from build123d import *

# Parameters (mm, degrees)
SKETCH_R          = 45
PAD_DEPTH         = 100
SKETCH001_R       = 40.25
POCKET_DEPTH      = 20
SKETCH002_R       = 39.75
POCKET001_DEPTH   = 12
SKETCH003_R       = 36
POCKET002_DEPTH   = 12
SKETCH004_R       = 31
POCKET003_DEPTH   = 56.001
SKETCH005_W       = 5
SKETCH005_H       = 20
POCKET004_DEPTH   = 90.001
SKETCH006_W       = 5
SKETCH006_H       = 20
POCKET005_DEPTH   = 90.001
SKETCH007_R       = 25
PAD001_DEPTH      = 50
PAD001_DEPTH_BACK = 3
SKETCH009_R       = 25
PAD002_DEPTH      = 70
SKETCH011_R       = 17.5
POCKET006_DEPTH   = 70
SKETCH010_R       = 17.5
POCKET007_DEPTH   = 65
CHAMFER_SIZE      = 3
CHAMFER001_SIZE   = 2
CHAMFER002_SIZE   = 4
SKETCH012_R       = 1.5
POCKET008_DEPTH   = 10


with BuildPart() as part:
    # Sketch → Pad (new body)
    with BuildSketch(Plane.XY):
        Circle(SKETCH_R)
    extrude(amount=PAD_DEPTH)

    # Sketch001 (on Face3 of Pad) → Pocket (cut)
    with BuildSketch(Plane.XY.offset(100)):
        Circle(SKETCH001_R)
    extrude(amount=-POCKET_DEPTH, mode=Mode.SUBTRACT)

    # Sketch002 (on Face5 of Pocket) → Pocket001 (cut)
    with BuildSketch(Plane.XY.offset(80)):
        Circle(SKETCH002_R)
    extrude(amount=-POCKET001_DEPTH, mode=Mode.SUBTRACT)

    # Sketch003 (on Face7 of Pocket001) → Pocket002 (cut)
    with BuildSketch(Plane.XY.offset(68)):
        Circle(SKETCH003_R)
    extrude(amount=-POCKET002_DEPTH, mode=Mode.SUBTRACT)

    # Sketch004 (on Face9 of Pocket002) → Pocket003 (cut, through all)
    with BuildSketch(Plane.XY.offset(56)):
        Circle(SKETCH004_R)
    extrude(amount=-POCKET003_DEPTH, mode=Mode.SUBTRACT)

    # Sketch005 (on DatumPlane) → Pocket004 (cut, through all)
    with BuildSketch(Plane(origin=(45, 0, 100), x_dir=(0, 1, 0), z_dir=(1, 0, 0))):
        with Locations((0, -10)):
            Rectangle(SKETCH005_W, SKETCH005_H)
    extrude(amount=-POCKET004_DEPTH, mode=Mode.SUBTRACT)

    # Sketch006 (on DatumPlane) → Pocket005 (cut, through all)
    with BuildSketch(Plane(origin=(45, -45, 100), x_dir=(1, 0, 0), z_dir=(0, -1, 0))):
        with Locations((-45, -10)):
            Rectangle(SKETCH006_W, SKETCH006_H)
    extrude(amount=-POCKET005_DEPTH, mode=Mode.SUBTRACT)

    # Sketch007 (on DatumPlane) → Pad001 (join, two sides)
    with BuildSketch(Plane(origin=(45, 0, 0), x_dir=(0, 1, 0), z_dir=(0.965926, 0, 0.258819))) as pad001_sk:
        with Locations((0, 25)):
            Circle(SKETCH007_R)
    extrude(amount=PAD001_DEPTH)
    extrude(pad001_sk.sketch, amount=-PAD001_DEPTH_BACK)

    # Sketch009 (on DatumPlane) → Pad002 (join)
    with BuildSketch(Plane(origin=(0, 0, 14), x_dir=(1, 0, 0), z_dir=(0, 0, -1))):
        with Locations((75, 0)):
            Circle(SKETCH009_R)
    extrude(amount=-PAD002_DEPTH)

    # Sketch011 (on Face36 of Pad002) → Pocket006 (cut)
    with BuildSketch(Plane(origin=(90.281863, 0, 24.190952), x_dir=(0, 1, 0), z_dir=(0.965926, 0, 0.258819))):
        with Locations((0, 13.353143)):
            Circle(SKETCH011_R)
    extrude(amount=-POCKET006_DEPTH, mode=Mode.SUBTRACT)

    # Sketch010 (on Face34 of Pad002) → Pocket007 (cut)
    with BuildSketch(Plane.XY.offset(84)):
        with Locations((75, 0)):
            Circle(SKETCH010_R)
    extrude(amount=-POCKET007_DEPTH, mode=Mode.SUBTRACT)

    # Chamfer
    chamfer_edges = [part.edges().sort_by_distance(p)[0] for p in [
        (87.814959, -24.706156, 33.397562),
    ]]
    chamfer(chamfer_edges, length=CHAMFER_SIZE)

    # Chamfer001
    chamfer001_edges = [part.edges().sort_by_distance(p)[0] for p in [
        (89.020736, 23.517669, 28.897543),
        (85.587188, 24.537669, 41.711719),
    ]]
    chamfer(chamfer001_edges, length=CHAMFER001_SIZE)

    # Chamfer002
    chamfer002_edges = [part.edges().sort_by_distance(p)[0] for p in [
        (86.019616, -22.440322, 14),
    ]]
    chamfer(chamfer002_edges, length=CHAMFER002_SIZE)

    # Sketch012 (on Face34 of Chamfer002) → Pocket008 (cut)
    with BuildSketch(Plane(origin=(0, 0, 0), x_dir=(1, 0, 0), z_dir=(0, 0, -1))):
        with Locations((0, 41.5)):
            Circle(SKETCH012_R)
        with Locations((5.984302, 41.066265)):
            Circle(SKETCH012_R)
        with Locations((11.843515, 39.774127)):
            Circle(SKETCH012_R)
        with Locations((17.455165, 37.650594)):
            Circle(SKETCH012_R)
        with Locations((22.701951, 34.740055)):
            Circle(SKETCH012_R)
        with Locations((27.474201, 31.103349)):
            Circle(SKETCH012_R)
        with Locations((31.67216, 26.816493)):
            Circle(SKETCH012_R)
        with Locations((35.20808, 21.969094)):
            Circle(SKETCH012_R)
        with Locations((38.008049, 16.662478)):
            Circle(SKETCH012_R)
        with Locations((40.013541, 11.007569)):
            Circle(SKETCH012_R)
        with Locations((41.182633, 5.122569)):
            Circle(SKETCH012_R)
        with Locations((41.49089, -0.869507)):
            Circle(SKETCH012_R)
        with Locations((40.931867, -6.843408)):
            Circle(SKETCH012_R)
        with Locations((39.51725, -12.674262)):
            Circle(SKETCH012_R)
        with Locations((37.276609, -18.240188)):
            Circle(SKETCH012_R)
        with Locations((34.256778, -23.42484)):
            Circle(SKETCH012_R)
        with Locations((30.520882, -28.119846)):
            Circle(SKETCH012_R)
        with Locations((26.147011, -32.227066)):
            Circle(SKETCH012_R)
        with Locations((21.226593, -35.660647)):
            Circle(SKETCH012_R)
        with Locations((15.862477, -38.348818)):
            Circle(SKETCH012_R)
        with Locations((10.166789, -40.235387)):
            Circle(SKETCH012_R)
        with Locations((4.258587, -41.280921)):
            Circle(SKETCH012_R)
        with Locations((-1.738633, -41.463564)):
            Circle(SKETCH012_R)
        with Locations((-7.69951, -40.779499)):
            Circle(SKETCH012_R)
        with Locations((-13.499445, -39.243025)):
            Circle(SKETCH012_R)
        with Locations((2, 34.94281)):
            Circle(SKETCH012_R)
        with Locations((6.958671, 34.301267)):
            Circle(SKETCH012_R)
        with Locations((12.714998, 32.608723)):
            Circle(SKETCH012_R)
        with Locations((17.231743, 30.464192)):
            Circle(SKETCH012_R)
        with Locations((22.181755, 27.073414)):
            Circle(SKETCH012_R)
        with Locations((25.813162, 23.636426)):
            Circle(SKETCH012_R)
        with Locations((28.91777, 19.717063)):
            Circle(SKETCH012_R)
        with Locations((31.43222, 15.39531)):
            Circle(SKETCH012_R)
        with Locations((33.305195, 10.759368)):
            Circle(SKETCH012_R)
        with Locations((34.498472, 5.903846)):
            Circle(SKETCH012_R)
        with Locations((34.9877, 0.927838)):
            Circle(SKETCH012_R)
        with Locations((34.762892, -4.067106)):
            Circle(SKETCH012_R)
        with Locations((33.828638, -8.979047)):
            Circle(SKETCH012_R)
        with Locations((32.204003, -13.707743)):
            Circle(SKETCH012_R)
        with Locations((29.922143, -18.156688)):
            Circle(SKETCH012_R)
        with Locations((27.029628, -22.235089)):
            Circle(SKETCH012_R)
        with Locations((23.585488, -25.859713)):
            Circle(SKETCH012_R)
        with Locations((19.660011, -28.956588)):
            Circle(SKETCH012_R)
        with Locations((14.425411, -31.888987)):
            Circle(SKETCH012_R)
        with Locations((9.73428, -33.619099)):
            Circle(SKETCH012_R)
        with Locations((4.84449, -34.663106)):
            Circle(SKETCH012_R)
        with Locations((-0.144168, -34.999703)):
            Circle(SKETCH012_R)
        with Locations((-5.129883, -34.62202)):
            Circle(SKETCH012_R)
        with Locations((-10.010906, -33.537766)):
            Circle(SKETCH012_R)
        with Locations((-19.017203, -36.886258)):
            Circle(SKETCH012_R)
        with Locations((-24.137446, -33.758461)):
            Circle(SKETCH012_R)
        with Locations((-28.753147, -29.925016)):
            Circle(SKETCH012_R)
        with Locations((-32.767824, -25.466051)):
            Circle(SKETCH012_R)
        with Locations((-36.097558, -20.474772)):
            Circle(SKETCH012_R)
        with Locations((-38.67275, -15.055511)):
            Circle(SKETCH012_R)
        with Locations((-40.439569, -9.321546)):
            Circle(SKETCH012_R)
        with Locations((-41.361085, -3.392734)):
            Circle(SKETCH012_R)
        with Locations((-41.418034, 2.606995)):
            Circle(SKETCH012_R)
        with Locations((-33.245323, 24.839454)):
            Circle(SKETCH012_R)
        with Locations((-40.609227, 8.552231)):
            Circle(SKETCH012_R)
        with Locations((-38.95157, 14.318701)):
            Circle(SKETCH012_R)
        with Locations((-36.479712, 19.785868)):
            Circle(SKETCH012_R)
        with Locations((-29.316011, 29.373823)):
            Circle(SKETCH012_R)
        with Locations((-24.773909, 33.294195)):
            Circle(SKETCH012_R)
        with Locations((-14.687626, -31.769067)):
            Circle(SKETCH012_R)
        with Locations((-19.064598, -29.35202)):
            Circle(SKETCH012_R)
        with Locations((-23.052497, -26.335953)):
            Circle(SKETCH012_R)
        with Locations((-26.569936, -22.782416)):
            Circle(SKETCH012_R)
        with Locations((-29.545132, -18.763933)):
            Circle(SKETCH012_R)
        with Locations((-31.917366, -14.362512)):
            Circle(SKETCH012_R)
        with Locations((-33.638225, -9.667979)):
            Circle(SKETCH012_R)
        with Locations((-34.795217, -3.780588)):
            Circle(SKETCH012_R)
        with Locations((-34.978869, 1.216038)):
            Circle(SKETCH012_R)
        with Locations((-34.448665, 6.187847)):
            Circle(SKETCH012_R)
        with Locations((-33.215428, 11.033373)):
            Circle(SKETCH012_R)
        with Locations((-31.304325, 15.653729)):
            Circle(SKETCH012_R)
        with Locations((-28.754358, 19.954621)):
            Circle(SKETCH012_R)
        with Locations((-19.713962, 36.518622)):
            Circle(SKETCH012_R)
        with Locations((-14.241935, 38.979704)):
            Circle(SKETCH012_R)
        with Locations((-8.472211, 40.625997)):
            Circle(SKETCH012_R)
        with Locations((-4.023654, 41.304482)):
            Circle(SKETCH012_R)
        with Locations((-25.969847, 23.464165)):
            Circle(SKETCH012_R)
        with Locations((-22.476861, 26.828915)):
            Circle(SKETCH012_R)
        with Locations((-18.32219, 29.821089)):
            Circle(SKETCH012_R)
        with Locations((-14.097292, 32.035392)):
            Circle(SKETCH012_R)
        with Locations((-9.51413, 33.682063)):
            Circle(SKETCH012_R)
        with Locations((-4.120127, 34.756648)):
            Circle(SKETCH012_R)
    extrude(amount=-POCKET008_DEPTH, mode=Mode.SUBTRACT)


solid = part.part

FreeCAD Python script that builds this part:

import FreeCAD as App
import Part
import Sketcher


def edges_at(feature, points):
    """Names of the edges that pass closest to the given points."""
    edges = feature.Shape.Edges
    near = lambda p: min(range(len(edges)), key=lambda i: edges[i].distToShape(Part.Vertex(*p))[0])
    return sorted({f"Edge{near(p) + 1}" for p in points})

doc = App.newDocument("Part")
body = doc.addObject("PartDesign::Body", "Body")

sketch1 = doc.addObject("Sketcher::SketchObject", "Sketch")
body.addObject(sketch1)
sketch1.AttachmentSupport = (doc.XY_Plane, [""])
sketch1.MapMode = "FlatFace"
sketch1.addGeometry(Part.Circle(App.Vector(0, 0, 0), App.Vector(0, 0, 1), 45), False)
sketch1.addConstraint(Sketcher.Constraint("Coincident", 0, 3, -1, 1))
sketch1.addConstraint(Sketcher.Constraint("Diameter", 0, 90.0))
pad1 = doc.addObject("PartDesign::Pad", "Pad")
body.addObject(pad1)
pad1.Profile = sketch1
pad1.Length = 100

sketch2 = doc.addObject("Sketcher::SketchObject", "Sketch001")
body.addObject(sketch2)
sketch2.AttachmentSupport = (doc.XY_Plane, [""])
sketch2.MapMode = "FlatFace"
sketch2.AttachmentOffset = App.Placement(App.Vector(0, 0, 100), App.Rotation())
sketch2.addGeometry(Part.Circle(App.Vector(0, 0, 0), App.Vector(0, 0, 1), 40), False)
sketch2.addConstraint(Sketcher.Constraint("Coincident", 0, 3, -1, 1))
sketch2.addConstraint(Sketcher.Constraint("Diameter", 0, 80.5))
pocket1 = doc.addObject("PartDesign::Pocket", "Pocket")
body.addObject(pocket1)
pocket1.Profile = sketch2
pocket1.Length = 20

sketch3 = doc.addObject("Sketcher::SketchObject", "Sketch002")
body.addObject(sketch3)
sketch3.AttachmentSupport = (doc.XY_Plane, [""])
sketch3.MapMode = "FlatFace"
sketch3.AttachmentOffset = App.Placement(App.Vector(0, 0, 80), App.Rotation())
sketch3.addGeometry(Part.Circle(App.Vector(0, 0, 0), App.Vector(0, 0, 1), 40), False)
sketch3.addConstraint(Sketcher.Constraint("Coincident", 0, 3, -1, 1))
sketch3.addConstraint(Sketcher.Constraint("Diameter", 0, 79.5))
pocket2 = doc.addObject("PartDesign::Pocket", "Pocket001")
body.addObject(pocket2)
pocket2.Profile = sketch3
pocket2.Length = 12

sketch4 = doc.addObject("Sketcher::SketchObject", "Sketch003")
body.addObject(sketch4)
sketch4.AttachmentSupport = (doc.XY_Plane, [""])
sketch4.MapMode = "FlatFace"
sketch4.AttachmentOffset = App.Placement(App.Vector(0, 0, 68), App.Rotation())
sketch4.addGeometry(Part.Circle(App.Vector(0, 0, 0), App.Vector(0, 0, 1), 36), False)
sketch4.addConstraint(Sketcher.Constraint("Coincident", 0, 3, -1, 1))
sketch4.addConstraint(Sketcher.Constraint("Diameter", 0, 72.0))
pocket3 = doc.addObject("PartDesign::Pocket", "Pocket002")
body.addObject(pocket3)
pocket3.Profile = sketch4
pocket3.Length = 12

sketch5 = doc.addObject("Sketcher::SketchObject", "Sketch004")
body.addObject(sketch5)
sketch5.AttachmentSupport = (doc.XY_Plane, [""])
sketch5.MapMode = "FlatFace"
sketch5.AttachmentOffset = App.Placement(App.Vector(0, 0, 56), App.Rotation())
sketch5.addGeometry(Part.Circle(App.Vector(0, 0, 0), App.Vector(0, 0, 1), 31), False)
sketch5.addConstraint(Sketcher.Constraint("Coincident", 0, 3, -1, 1))
sketch5.addConstraint(Sketcher.Constraint("Diameter", 0, 62.0))
pocket4 = doc.addObject("PartDesign::Pocket", "Pocket003")
body.addObject(pocket4)
pocket4.Profile = sketch5
pocket4.Type = "ThroughAll"

sketch6 = doc.addObject("Sketcher::SketchObject", "Sketch005")
body.addObject(sketch6)
sketch6.AttachmentSupport = (doc.YZ_Plane, [""])
sketch6.MapMode = "FlatFace"
sketch6.AttachmentOffset = App.Placement(App.Vector(0, 0, 45), App.Rotation())
sketch6.addGeometry(Part.LineSegment(App.Vector(-2, 100, 0), App.Vector(-2, 80, 0)), False)
sketch6.addGeometry(Part.LineSegment(App.Vector(-2, 80, 0), App.Vector(2, 80, 0)), False)
sketch6.addGeometry(Part.LineSegment(App.Vector(2, 80, 0), App.Vector(2, 100, 0)), False)
sketch6.addGeometry(Part.LineSegment(App.Vector(2, 100, 0), App.Vector(-2, 100, 0)), False)
sketch6.addConstraint(Sketcher.Constraint("Coincident", 0, 2, 1, 1))
sketch6.addConstraint(Sketcher.Constraint("Coincident", 1, 2, 2, 1))
sketch6.addConstraint(Sketcher.Constraint("Coincident", 2, 2, 3, 1))
sketch6.addConstraint(Sketcher.Constraint("Coincident", 3, 2, 0, 1))
sketch6.addConstraint(Sketcher.Constraint("Vertical", 0))
sketch6.addConstraint(Sketcher.Constraint("Horizontal", 1))
sketch6.addConstraint(Sketcher.Constraint("Vertical", 2))
sketch6.addConstraint(Sketcher.Constraint("Horizontal", 3))
sketch6.addConstraint(Sketcher.Constraint("DistanceX", 1, 1, 1, 2, 5.0))
sketch6.addConstraint(Sketcher.Constraint("DistanceY", 0, 2, 0, 1, 20.0))
sketch6.addConstraint(Sketcher.Constraint("DistanceY", -1, 1, 0, 2, 80.0))
sketch6.addConstraint(Sketcher.Constraint("DistanceX", 0, 2, -1, 1, 2.5))
pocket5 = doc.addObject("PartDesign::Pocket", "Pocket004")
body.addObject(pocket5)
pocket5.Profile = sketch6
pocket5.Type = "ThroughAll"

sketch7 = doc.addObject("Sketcher::SketchObject", "Sketch006")
body.addObject(sketch7)
sketch7.AttachmentSupport = (doc.XZ_Plane, [""])
sketch7.MapMode = "FlatFace"
sketch7.AttachmentOffset = App.Placement(App.Vector(0, 0, 45), App.Rotation())
sketch7.addGeometry(Part.LineSegment(App.Vector(-2, 100, 0), App.Vector(-2, 80, 0)), False)
sketch7.addGeometry(Part.LineSegment(App.Vector(-2, 80, 0), App.Vector(2, 80, 0)), False)
sketch7.addGeometry(Part.LineSegment(App.Vector(2, 80, 0), App.Vector(2, 100, 0)), False)
sketch7.addGeometry(Part.LineSegment(App.Vector(2, 100, 0), App.Vector(-2, 100, 0)), False)
sketch7.addConstraint(Sketcher.Constraint("Coincident", 0, 2, 1, 1))
sketch7.addConstraint(Sketcher.Constraint("Coincident", 1, 2, 2, 1))
sketch7.addConstraint(Sketcher.Constraint("Coincident", 2, 2, 3, 1))
sketch7.addConstraint(Sketcher.Constraint("Coincident", 3, 2, 0, 1))
sketch7.addConstraint(Sketcher.Constraint("Vertical", 0))
sketch7.addConstraint(Sketcher.Constraint("Horizontal", 1))
sketch7.addConstraint(Sketcher.Constraint("Vertical", 2))
sketch7.addConstraint(Sketcher.Constraint("Horizontal", 3))
sketch7.addConstraint(Sketcher.Constraint("DistanceX", 1, 1, 1, 2, 5.0))
sketch7.addConstraint(Sketcher.Constraint("DistanceY", 0, 2, 0, 1, 20.0))
sketch7.addConstraint(Sketcher.Constraint("DistanceY", -1, 1, 0, 2, 80.0))
sketch7.addConstraint(Sketcher.Constraint("DistanceX", 0, 2, -1, 1, 2.5))
pocket6 = doc.addObject("PartDesign::Pocket", "Pocket005")
body.addObject(pocket6)
pocket6.Profile = sketch7
pocket6.Type = "ThroughAll"

sketch8 = doc.addObject("Sketcher::SketchObject", "Sketch007")
body.addObject(sketch8)
sketch8.Placement = App.Placement(App.Vector(45, 0, 0), App.Rotation(App.Vector(0, 1, 0), App.Vector(-0.25881896, 0, 0.965925849), App.Vector(0.965925849, 0, 0.25881896), "ZXY"))
sketch8.addGeometry(Part.Circle(App.Vector(0, 25, 0), App.Vector(0, 0, 1), 25), False)
sketch8.addConstraint(Sketcher.Constraint("PointOnObject", 0, 3, -2))
sketch8.addConstraint(Sketcher.Constraint("Diameter", 0, 50.0))
sketch8.addConstraint(Sketcher.Constraint("DistanceY", -1, 1, 0, 3, 25.0))
pad2 = doc.addObject("PartDesign::Pad", "Pad001")
body.addObject(pad2)
pad2.Profile = sketch8
pad2.Type = "TwoLengths"
pad2.Length = 50
pad2.Length2 = 3

sketch9 = doc.addObject("Sketcher::SketchObject", "Sketch008")
body.addObject(sketch9)
sketch9.AttachmentSupport = (doc.XY_Plane, [""])
sketch9.MapMode = "FlatFace"
sketch9.AttachmentOffset = App.Placement(App.Vector(0, 0, 14), App.Rotation())
sketch9.addGeometry(Part.Circle(App.Vector(75, 0, 0), App.Vector(0, 0, 1), 25), False)
sketch9.addConstraint(Sketcher.Constraint("PointOnObject", 0, 3, -1))
sketch9.addConstraint(Sketcher.Constraint("Diameter", 0, 50.0))
sketch9.addConstraint(Sketcher.Constraint("DistanceX", -1, 1, 0, 3, 75.0))
pad3 = doc.addObject("PartDesign::Pad", "Pad002")
body.addObject(pad3)
pad3.Profile = sketch9
pad3.Length = 70

sketch10 = doc.addObject("Sketcher::SketchObject", "Sketch009")
body.addObject(sketch10)
sketch10.Placement = App.Placement(App.Vector(90.281863, 0, 24.190952), App.Rotation(App.Vector(0, 1, 0), App.Vector(-0.25881896, 0, 0.965925849), App.Vector(0.965925849, 0, 0.25881896), "ZXY"))
sketch10.addGeometry(Part.Circle(App.Vector(0, 13, 0), App.Vector(0, 0, 1), 18), False)
sketch10.addConstraint(Sketcher.Constraint("PointOnObject", 0, 3, -2))
sketch10.addConstraint(Sketcher.Constraint("Diameter", 0, 35.0))
sketch10.addConstraint(Sketcher.Constraint("DistanceY", -1, 1, 0, 3, 13.353143))
pocket7 = doc.addObject("PartDesign::Pocket", "Pocket006")
body.addObject(pocket7)
pocket7.Profile = sketch10
pocket7.Length = 70

sketch11 = doc.addObject("Sketcher::SketchObject", "Sketch010")
body.addObject(sketch11)
sketch11.AttachmentSupport = (doc.XY_Plane, [""])
sketch11.MapMode = "FlatFace"
sketch11.AttachmentOffset = App.Placement(App.Vector(0, 0, 84), App.Rotation())
sketch11.addGeometry(Part.Circle(App.Vector(75, 0, 0), App.Vector(0, 0, 1), 18), False)
sketch11.addConstraint(Sketcher.Constraint("PointOnObject", 0, 3, -1))
sketch11.addConstraint(Sketcher.Constraint("Diameter", 0, 35.0))
sketch11.addConstraint(Sketcher.Constraint("DistanceX", -1, 1, 0, 3, 75.0))
pocket8 = doc.addObject("PartDesign::Pocket", "Pocket007")
body.addObject(pocket8)
pocket8.Profile = sketch11
pocket8.Length = 65
doc.recompute()

chamfer = doc.addObject("PartDesign::Chamfer", "Chamfer")
body.addObject(chamfer)
chamfer.Base = (pocket8, edges_at(pocket8, [(87.815, -24.706, 33.398)]))
chamfer.Size = 3
doc.recompute()

chamfer2 = doc.addObject("PartDesign::Chamfer", "Chamfer001")
body.addObject(chamfer2)
chamfer2.Base = (chamfer, edges_at(chamfer, [(89.021, 23.518, 28.898), (85.587, 24.538, 41.712)]))
chamfer2.Size = 2
doc.recompute()

chamfer3 = doc.addObject("PartDesign::Chamfer", "Chamfer002")
body.addObject(chamfer3)
chamfer3.Base = (chamfer2, edges_at(chamfer2, [(86.02, -22.44, 14)]))
chamfer3.Size = 4

sketch12 = doc.addObject("Sketcher::SketchObject", "Sketch011")
body.addObject(sketch12)
sketch12.AttachmentSupport = (doc.XY_Plane, [""])
sketch12.MapMode = "FlatFace"
sketch12.addGeometry(Part.Circle(App.Vector(0, -41.5, 0), App.Vector(0, 0, 1), 1.5), False)
sketch12.addGeometry(Part.Circle(App.Vector(6, -41.1, 0), App.Vector(0, 0, 1), 1.5), False)
sketch12.addGeometry(Part.Circle(App.Vector(11.8, -39.8, 0), App.Vector(0, 0, 1), 1.5), False)
sketch12.addGeometry(Part.Circle(App.Vector(17.5, -37.7, 0), App.Vector(0, 0, 1), 1.5), False)
sketch12.addGeometry(Part.Circle(App.Vector(22.7, -34.7, 0), App.Vector(0, 0, 1), 1.5), False)
sketch12.addGeometry(Part.Circle(App.Vector(27.5, -31.1, 0), App.Vector(0, 0, 1), 1.5), False)
sketch12.addGeometry(Part.Circle(App.Vector(31.7, -26.8, 0), App.Vector(0, 0, 1), 1.5), False)
sketch12.addGeometry(Part.Circle(App.Vector(35.2, -22, 0), App.Vector(0, 0, 1), 1.5), False)
sketch12.addGeometry(Part.Circle(App.Vector(38, -16.7, 0), App.Vector(0, 0, 1), 1.5), False)
sketch12.addGeometry(Part.Circle(App.Vector(40, -11, 0), App.Vector(0, 0, 1), 1.5), False)
sketch12.addGeometry(Part.Circle(App.Vector(41.2, -5.1, 0), App.Vector(0, 0, 1), 1.5), False)
sketch12.addGeometry(Part.Circle(App.Vector(41.5, 0.9, 0), App.Vector(0, 0, 1), 1.5), False)
sketch12.addGeometry(Part.Circle(App.Vector(40.9, 6.8, 0), App.Vector(0, 0, 1), 1.5), False)
sketch12.addGeometry(Part.Circle(App.Vector(39.5, 12.7, 0), App.Vector(0, 0, 1), 1.5), False)
sketch12.addGeometry(Part.Circle(App.Vector(37.3, 18.2, 0), App.Vector(0, 0, 1), 1.5), False)
sketch12.addGeometry(Part.Circle(App.Vector(34.3, 23.4, 0), App.Vector(0, 0, 1), 1.5), False)
sketch12.addGeometry(Part.Circle(App.Vector(30.5, 28.1, 0), App.Vector(0, 0, 1), 1.5), False)
sketch12.addGeometry(Part.Circle(App.Vector(26.1, 32.2, 0), App.Vector(0, 0, 1), 1.5), False)
sketch12.addGeometry(Part.Circle(App.Vector(21.2, 35.7, 0), App.Vector(0, 0, 1), 1.5), False)
sketch12.addGeometry(Part.Circle(App.Vector(15.9, 38.3, 0), App.Vector(0, 0, 1), 1.5), False)
sketch12.addGeometry(Part.Circle(App.Vector(10.2, 40.2, 0), App.Vector(0, 0, 1), 1.5), False)
sketch12.addGeometry(Part.Circle(App.Vector(4.3, 41.3, 0), App.Vector(0, 0, 1), 1.5), False)
sketch12.addGeometry(Part.Circle(App.Vector(-1.7, 41.5, 0), App.Vector(0, 0, 1), 1.5), False)
sketch12.addGeometry(Part.Circle(App.Vector(-7.7, 40.8, 0), App.Vector(0, 0, 1), 1.5), False)
sketch12.addGeometry(Part.Circle(App.Vector(-13.5, 39.2, 0), App.Vector(0, 0, 1), 1.5), False)
sketch12.addGeometry(Part.Circle(App.Vector(2, -34.9, 0), App.Vector(0, 0, 1), 1.5), False)
sketch12.addGeometry(Part.Circle(App.Vector(7, -34.3, 0), App.Vector(0, 0, 1), 1.5), False)
sketch12.addGeometry(Part.Circle(App.Vector(12.7, -32.6, 0), App.Vector(0, 0, 1), 1.5), False)
sketch12.addGeometry(Part.Circle(App.Vector(17.2, -30.5, 0), App.Vector(0, 0, 1), 1.5), False)
sketch12.addGeometry(Part.Circle(App.Vector(22.2, -27.1, 0), App.Vector(0, 0, 1), 1.5), False)
sketch12.addGeometry(Part.Circle(App.Vector(25.8, -23.6, 0), App.Vector(0, 0, 1), 1.5), False)
sketch12.addGeometry(Part.Circle(App.Vector(28.9, -19.7, 0), App.Vector(0, 0, 1), 1.5), False)
sketch12.addGeometry(Part.Circle(App.Vector(31.4, -15.4, 0), App.Vector(0, 0, 1), 1.5), False)
sketch12.addGeometry(Part.Circle(App.Vector(33.3, -10.8, 0), App.Vector(0, 0, 1), 1.5), False)
sketch12.addGeometry(Part.Circle(App.Vector(34.5, -5.9, 0), App.Vector(0, 0, 1), 1.5), False)
sketch12.addGeometry(Part.Circle(App.Vector(35, -0.9, 0), App.Vector(0, 0, 1), 1.5), False)
sketch12.addGeometry(Part.Circle(App.Vector(34.8, 4.1, 0), App.Vector(0, 0, 1), 1.5), False)
sketch12.addGeometry(Part.Circle(App.Vector(33.8, 9, 0), App.Vector(0, 0, 1), 1.5), False)
sketch12.addGeometry(Part.Circle(App.Vector(32.2, 13.7, 0), App.Vector(0, 0, 1), 1.5), False)
sketch12.addGeometry(Part.Circle(App.Vector(29.9, 18.2, 0), App.Vector(0, 0, 1), 1.5), False)
sketch12.addGeometry(Part.Circle(App.Vector(27, 22.2, 0), App.Vector(0, 0, 1), 1.5), False)
sketch12.addGeometry(Part.Circle(App.Vector(23.6, 25.9, 0), App.Vector(0, 0, 1), 1.5), False)
sketch12.addGeometry(Part.Circle(App.Vector(19.7, 29, 0), App.Vector(0, 0, 1), 1.5), False)
sketch12.addGeometry(Part.Circle(App.Vector(14.4, 31.9, 0), App.Vector(0, 0, 1), 1.5), False)
sketch12.addGeometry(Part.Circle(App.Vector(9.7, 33.6, 0), App.Vector(0, 0, 1), 1.5), False)
sketch12.addGeometry(Part.Circle(App.Vector(4.8, 34.7, 0), App.Vector(0, 0, 1), 1.5), False)
sketch12.addGeometry(Part.Circle(App.Vector(-0.1, 35, 0), App.Vector(0, 0, 1), 1.5), False)
sketch12.addGeometry(Part.Circle(App.Vector(-5.1, 34.6, 0), App.Vector(0, 0, 1), 1.5), False)
sketch12.addGeometry(Part.Circle(App.Vector(-10, 33.5, 0), App.Vector(0, 0, 1), 1.5), False)
sketch12.addGeometry(Part.Circle(App.Vector(-19, 36.9, 0), App.Vector(0, 0, 1), 1.5), False)
sketch12.addGeometry(Part.Circle(App.Vector(-24.1, 33.8, 0), App.Vector(0, 0, 1), 1.5), False)
sketch12.addGeometry(Part.Circle(App.Vector(-28.8, 29.9, 0), App.Vector(0, 0, 1), 1.5), False)
sketch12.addGeometry(Part.Circle(App.Vector(-32.8, 25.5, 0), App.Vector(0, 0, 1), 1.5), False)
sketch12.addGeometry(Part.Circle(App.Vector(-36.1, 20.5, 0), App.Vector(0, 0, 1), 1.5), False)
sketch12.addGeometry(Part.Circle(App.Vector(-38.7, 15.1, 0), App.Vector(0, 0, 1), 1.5), False)
sketch12.addGeometry(Part.Circle(App.Vector(-40.4, 9.3, 0), App.Vector(0, 0, 1), 1.5), False)
sketch12.addGeometry(Part.Circle(App.Vector(-41.4, 3.4, 0), App.Vector(0, 0, 1), 1.5), False)
sketch12.addGeometry(Part.Circle(App.Vector(-41.4, -2.6, 0), App.Vector(0, 0, 1), 1.5), False)
sketch12.addGeometry(Part.Circle(App.Vector(-33.2, -24.8, 0), App.Vector(0, 0, 1), 1.5), False)
sketch12.addGeometry(Part.Circle(App.Vector(-40.6, -8.6, 0), App.Vector(0, 0, 1), 1.5), False)
sketch12.addGeometry(Part.Circle(App.Vector(-39, -14.3, 0), App.Vector(0, 0, 1), 1.5), False)
sketch12.addGeometry(Part.Circle(App.Vector(-36.5, -19.8, 0), App.Vector(0, 0, 1), 1.5), False)
sketch12.addGeometry(Part.Circle(App.Vector(-29.3, -29.4, 0), App.Vector(0, 0, 1), 1.5), False)
sketch12.addGeometry(Part.Circle(App.Vector(-24.8, -33.3, 0), App.Vector(0, 0, 1), 1.5), False)
sketch12.addGeometry(Part.Circle(App.Vector(-14.7, 31.8, 0), App.Vector(0, 0, 1), 1.5), False)
sketch12.addGeometry(Part.Circle(App.Vector(-19.1, 29.4, 0), App.Vector(0, 0, 1), 1.5), False)
sketch12.addGeometry(Part.Circle(App.Vector(-23.1, 26.3, 0), App.Vector(0, 0, 1), 1.5), False)
sketch12.addGeometry(Part.Circle(App.Vector(-26.6, 22.8, 0), App.Vector(0, 0, 1), 1.5), False)
sketch12.addGeometry(Part.Circle(App.Vector(-29.5, 18.8, 0), App.Vector(0, 0, 1), 1.5), False)
sketch12.addGeometry(Part.Circle(App.Vector(-31.9, 14.4, 0), App.Vector(0, 0, 1), 1.5), False)
sketch12.addGeometry(Part.Circle(App.Vector(-33.6, 9.7, 0), App.Vector(0, 0, 1), 1.5), False)
sketch12.addGeometry(Part.Circle(App.Vector(-34.8, 3.8, 0), App.Vector(0, 0, 1), 1.5), False)
sketch12.addGeometry(Part.Circle(App.Vector(-35, -1.2, 0), App.Vector(0, 0, 1), 1.5), False)
sketch12.addGeometry(Part.Circle(App.Vector(-34.4, -6.2, 0), App.Vector(0, 0, 1), 1.5), False)
sketch12.addGeometry(Part.Circle(App.Vector(-33.2, -11, 0), App.Vector(0, 0, 1), 1.5), False)
sketch12.addGeometry(Part.Circle(App.Vector(-31.3, -15.7, 0), App.Vector(0, 0, 1), 1.5), False)
sketch12.addGeometry(Part.Circle(App.Vector(-28.8, -20, 0), App.Vector(0, 0, 1), 1.5), False)
sketch12.addGeometry(Part.Circle(App.Vector(-19.7, -36.5, 0), App.Vector(0, 0, 1), 1.5), False)
sketch12.addGeometry(Part.Circle(App.Vector(-14.2, -39, 0), App.Vector(0, 0, 1), 1.5), False)
sketch12.addGeometry(Part.Circle(App.Vector(-8.5, -40.6, 0), App.Vector(0, 0, 1), 1.5), False)
sketch12.addGeometry(Part.Circle(App.Vector(-4, -41.3, 0), App.Vector(0, 0, 1), 1.5), False)
sketch12.addGeometry(Part.Circle(App.Vector(-26, -23.5, 0), App.Vector(0, 0, 1), 1.5), False)
sketch12.addGeometry(Part.Circle(App.Vector(-22.5, -26.8, 0), App.Vector(0, 0, 1), 1.5), False)
sketch12.addGeometry(Part.Circle(App.Vector(-18.3, -29.8, 0), App.Vector(0, 0, 1), 1.5), False)
sketch12.addGeometry(Part.Circle(App.Vector(-14.1, -32, 0), App.Vector(0, 0, 1), 1.5), False)
sketch12.addGeometry(Part.Circle(App.Vector(-9.5, -33.7, 0), App.Vector(0, 0, 1), 1.5), False)
sketch12.addGeometry(Part.Circle(App.Vector(-4.1, -34.8, 0), App.Vector(0, 0, 1), 1.5), False)
sketch12.addConstraint(Sketcher.Constraint("Equal", 0, 1))
sketch12.addConstraint(Sketcher.Constraint("Equal", 1, 2))
sketch12.addConstraint(Sketcher.Constraint("Equal", 2, 3))
sketch12.addConstraint(Sketcher.Constraint("Equal", 3, 4))
sketch12.addConstraint(Sketcher.Constraint("Equal", 4, 5))
sketch12.addConstraint(Sketcher.Constraint("Equal", 5, 6))
sketch12.addConstraint(Sketcher.Constraint("Equal", 6, 7))
sketch12.addConstraint(Sketcher.Constraint("Equal", 7, 8))
sketch12.addConstraint(Sketcher.Constraint("Equal", 8, 9))
sketch12.addConstraint(Sketcher.Constraint("Equal", 9, 10))
sketch12.addConstraint(Sketcher.Constraint("Equal", 10, 11))
sketch12.addConstraint(Sketcher.Constraint("Equal", 11, 12))
sketch12.addConstraint(Sketcher.Constraint("Equal", 12, 13))
sketch12.addConstraint(Sketcher.Constraint("Equal", 13, 14))
sketch12.addConstraint(Sketcher.Constraint("Equal", 14, 15))
sketch12.addConstraint(Sketcher.Constraint("Equal", 15, 16))
sketch12.addConstraint(Sketcher.Constraint("Equal", 16, 17))
sketch12.addConstraint(Sketcher.Constraint("Equal", 17, 18))
sketch12.addConstraint(Sketcher.Constraint("Equal", 18, 19))
sketch12.addConstraint(Sketcher.Constraint("Equal", 19, 20))
sketch12.addConstraint(Sketcher.Constraint("Equal", 20, 21))
sketch12.addConstraint(Sketcher.Constraint("Equal", 21, 22))
sketch12.addConstraint(Sketcher.Constraint("Equal", 22, 23))
sketch12.addConstraint(Sketcher.Constraint("Equal", 23, 24))
sketch12.addConstraint(Sketcher.Constraint("Equal", 24, 25))
sketch12.addConstraint(Sketcher.Constraint("Equal", 25, 26))
sketch12.addConstraint(Sketcher.Constraint("Equal", 26, 27))
sketch12.addConstraint(Sketcher.Constraint("Equal", 27, 28))
sketch12.addConstraint(Sketcher.Constraint("Equal", 28, 29))
sketch12.addConstraint(Sketcher.Constraint("Equal", 29, 30))
sketch12.addConstraint(Sketcher.Constraint("Equal", 30, 31))
sketch12.addConstraint(Sketcher.Constraint("Equal", 31, 32))
sketch12.addConstraint(Sketcher.Constraint("Equal", 32, 33))
sketch12.addConstraint(Sketcher.Constraint("Equal", 33, 34))
sketch12.addConstraint(Sketcher.Constraint("Equal", 34, 35))
sketch12.addConstraint(Sketcher.Constraint("Equal", 35, 36))
sketch12.addConstraint(Sketcher.Constraint("Equal", 36, 37))
sketch12.addConstraint(Sketcher.Constraint("Equal", 37, 38))
sketch12.addConstraint(Sketcher.Constraint("Equal", 38, 39))
sketch12.addConstraint(Sketcher.Constraint("Equal", 39, 40))
sketch12.addConstraint(Sketcher.Constraint("Equal", 40, 41))
sketch12.addConstraint(Sketcher.Constraint("Equal", 41, 42))
sketch12.addConstraint(Sketcher.Constraint("Equal", 42, 43))
sketch12.addConstraint(Sketcher.Constraint("Equal", 43, 44))
sketch12.addConstraint(Sketcher.Constraint("Equal", 44, 45))
sketch12.addConstraint(Sketcher.Constraint("Equal", 45, 46))
sketch12.addConstraint(Sketcher.Constraint("Equal", 46, 47))
sketch12.addConstraint(Sketcher.Constraint("Equal", 47, 48))
sketch12.addConstraint(Sketcher.Constraint("Equal", 48, 49))
sketch12.addConstraint(Sketcher.Constraint("Equal", 49, 50))
sketch12.addConstraint(Sketcher.Constraint("Equal", 50, 51))
sketch12.addConstraint(Sketcher.Constraint("Equal", 51, 52))
sketch12.addConstraint(Sketcher.Constraint("Equal", 52, 53))
sketch12.addConstraint(Sketcher.Constraint("Equal", 53, 54))
sketch12.addConstraint(Sketcher.Constraint("Equal", 54, 55))
sketch12.addConstraint(Sketcher.Constraint("Equal", 55, 56))
sketch12.addConstraint(Sketcher.Constraint("Equal", 56, 57))
sketch12.addConstraint(Sketcher.Constraint("Equal", 57, 58))
sketch12.addConstraint(Sketcher.Constraint("Equal", 58, 59))
sketch12.addConstraint(Sketcher.Constraint("Equal", 59, 60))
sketch12.addConstraint(Sketcher.Constraint("Equal", 60, 61))
sketch12.addConstraint(Sketcher.Constraint("Equal", 61, 62))
sketch12.addConstraint(Sketcher.Constraint("Equal", 62, 63))
sketch12.addConstraint(Sketcher.Constraint("Equal", 63, 64))
sketch12.addConstraint(Sketcher.Constraint("Equal", 64, 65))
sketch12.addConstraint(Sketcher.Constraint("Equal", 65, 66))
sketch12.addConstraint(Sketcher.Constraint("Equal", 66, 67))
sketch12.addConstraint(Sketcher.Constraint("Equal", 67, 68))
sketch12.addConstraint(Sketcher.Constraint("Equal", 68, 69))
sketch12.addConstraint(Sketcher.Constraint("Equal", 69, 70))
sketch12.addConstraint(Sketcher.Constraint("Equal", 70, 71))
sketch12.addConstraint(Sketcher.Constraint("Equal", 71, 72))
sketch12.addConstraint(Sketcher.Constraint("Equal", 72, 73))
sketch12.addConstraint(Sketcher.Constraint("Equal", 73, 74))
sketch12.addConstraint(Sketcher.Constraint("Equal", 74, 75))
sketch12.addConstraint(Sketcher.Constraint("Equal", 75, 76))
sketch12.addConstraint(Sketcher.Constraint("Equal", 76, 77))
sketch12.addConstraint(Sketcher.Constraint("Equal", 77, 78))
sketch12.addConstraint(Sketcher.Constraint("Equal", 78, 79))
sketch12.addConstraint(Sketcher.Constraint("Equal", 79, 80))
sketch12.addConstraint(Sketcher.Constraint("Equal", 80, 81))
sketch12.addConstraint(Sketcher.Constraint("Equal", 81, 82))
sketch12.addConstraint(Sketcher.Constraint("Equal", 82, 83))
sketch12.addConstraint(Sketcher.Constraint("Equal", 83, 84))
sketch12.addConstraint(Sketcher.Constraint("Equal", 84, 85))
sketch12.addConstraint(Sketcher.Constraint("Equal", 85, 86))
sketch12.addConstraint(Sketcher.Constraint("PointOnObject", 0, 3, -2))
sketch12.addConstraint(Sketcher.Constraint("Diameter", 0, 3.0))
sketch12.addConstraint(Sketcher.Constraint("DistanceX", -1, 1, 25, 3, 2.0))
sketch12.addConstraint(Sketcher.Constraint("DistanceY", 0, 3, -1, 1, 41.5))
sketch12.addConstraint(Sketcher.Constraint("DistanceX", -1, 1, 1, 3, 5.984302))
sketch12.addConstraint(Sketcher.Constraint("DistanceX", -1, 1, 5, 3, 27.474201))
sketch12.addConstraint(Sketcher.Constraint("DistanceY", -1, 1, 23, 3, 40.779499))
sketch12.addConstraint(Sketcher.Constraint("DistanceX", -1, 1, 35, 3, 34.9877))
sketch12.addConstraint(Sketcher.Constraint("DistanceY", -1, 1, 44, 3, 33.619099))
sketch12.addConstraint(Sketcher.Constraint("DistanceY", 60, 3, -1, 1, 14.318701))
sketch12.addConstraint(Sketcher.Constraint("DistanceX", 65, 3, -1, 1, 19.064598))
sketch12.addConstraint(Sketcher.Constraint("DistanceX", -1, 1, 4, 3, 22.701951))
sketch12.addConstraint(Sketcher.Constraint("DistanceY", 5, 3, -1, 1, 31.103349))
sketch12.addConstraint(Sketcher.Constraint("DistanceX", -1, 1, 6, 3, 31.67216))
sketch12.addConstraint(Sketcher.Constraint("DistanceX", -1, 1, 7, 3, 35.20808))
sketch12.addConstraint(Sketcher.Constraint("DistanceX", -1, 1, 8, 3, 38.008049))
sketch12.addConstraint(Sketcher.Constraint("DistanceY", 8, 3, -1, 1, 16.662478))
sketch12.addConstraint(Sketcher.Constraint("DistanceX", -1, 1, 9, 3, 40.013541))
sketch12.addConstraint(Sketcher.Constraint("DistanceY", 9, 3, -1, 1, 11.007569))
sketch12.addConstraint(Sketcher.Constraint("DistanceY", 10, 3, -1, 1, 5.122569))
sketch12.addConstraint(Sketcher.Constraint("DistanceX", -1, 1, 11, 3, 41.49089))
sketch12.addConstraint(Sketcher.Constraint("DistanceX", -1, 1, 13, 3, 39.51725))
sketch12.addConstraint(Sketcher.Constraint("DistanceX", -1, 1, 14, 3, 37.276609))
sketch12.addConstraint(Sketcher.Constraint("DistanceY", -1, 1, 14, 3, 18.240188))
sketch12.addConstraint(Sketcher.Constraint("DistanceY", -1, 1, 15, 3, 23.42484))
sketch12.addConstraint(Sketcher.Constraint("DistanceX", -1, 1, 17, 3, 26.147011))
sketch12.addConstraint(Sketcher.Constraint("DistanceX", -1, 1, 20, 3, 10.166789))
sketch12.addConstraint(Sketcher.Constraint("DistanceY", -1, 1, 21, 3, 41.280921))
sketch12.addConstraint(Sketcher.Constraint("DistanceX", 23, 3, -1, 1, 7.69951))
sketch12.addConstraint(Sketcher.Constraint("DistanceY", 25, 3, -1, 1, 34.94281))
sketch12.addConstraint(Sketcher.Constraint("DistanceX", -1, 1, 26, 3, 6.958671))
sketch12.addConstraint(Sketcher.Constraint("DistanceX", -1, 1, 30, 3, 25.813162))
sketch12.addConstraint(Sketcher.Constraint("DistanceX", -1, 1, 31, 3, 28.91777))
sketch12.addConstraint(Sketcher.Constraint("DistanceX", -1, 1, 32, 3, 31.43222))
sketch12.addConstraint(Sketcher.Constraint("DistanceY", 32, 3, -1, 1, 15.39531))
sketch12.addConstraint(Sketcher.Constraint("DistanceY", 35, 3, -1, 1, 0.927838))
sketch12.addConstraint(Sketcher.Constraint("DistanceY", -1, 1, 40, 3, 22.235089))
sketch12.addConstraint(Sketcher.Constraint("DistanceX", -1, 1, 41, 3, 23.585488))
sketch12.addConstraint(Sketcher.Constraint("DistanceX", -1, 1, 42, 3, 19.660011))
sketch12.addConstraint(Sketcher.Constraint("DistanceY", -1, 1, 42, 3, 28.956588))
sketch12.addConstraint(Sketcher.Constraint("DistanceX", -1, 1, 43, 3, 14.425411))
sketch12.addConstraint(Sketcher.Constraint("DistanceX", -1, 1, 44, 3, 9.73428))
sketch12.addConstraint(Sketcher.Constraint("DistanceX", -1, 1, 45, 3, 4.84449))
sketch12.addConstraint(Sketcher.Constraint("DistanceY", -1, 1, 47, 3, 34.62202))
sketch12.addConstraint(Sketcher.Constraint("DistanceY", -1, 1, 50, 3, 33.758461))
sketch12.addConstraint(Sketcher.Constraint("DistanceY", -1, 1, 52, 3, 25.466051))
sketch12.addConstraint(Sketcher.Constraint("DistanceX", 54, 3, -1, 1, 38.67275))
sketch12.addConstraint(Sketcher.Constraint("DistanceY", -1, 1, 54, 3, 15.055511))
sketch12.addConstraint(Sketcher.Constraint("DistanceX", 55, 3, -1, 1, 40.439569))
sketch12.addConstraint(Sketcher.Constraint("DistanceY", 59, 3, -1, 1, 8.552231))
sketch12.addConstraint(Sketcher.Constraint("DistanceX", 60, 3, -1, 1, 38.95157))
sketch12.addConstraint(Sketcher.Constraint("DistanceY", 61, 3, -1, 1, 19.785868))
sketch12.addConstraint(Sketcher.Constraint("DistanceX", 62, 3, -1, 1, 29.316011))
sketch12.addConstraint(Sketcher.Constraint("DistanceX", 63, 3, -1, 1, 24.773909))
sketch12.addConstraint(Sketcher.Constraint("DistanceY", -1, 1, 65, 3, 29.35202))
sketch12.addConstraint(Sketcher.Constraint("DistanceX", 68, 3, -1, 1, 29.545132))
sketch12.addConstraint(Sketcher.Constraint("DistanceY", -1, 1, 70, 3, 9.667979))
sketch12.addConstraint(Sketcher.Constraint("DistanceX", 72, 3, -1, 1, 34.978869))
sketch12.addConstraint(Sketcher.Constraint("DistanceX", 74, 3, -1, 1, 33.215428))
sketch12.addConstraint(Sketcher.Constraint("DistanceY", 75, 3, -1, 1, 15.653729))
sketch12.addConstraint(Sketcher.Constraint("DistanceX", 76, 3, -1, 1, 28.754358))
sketch12.addConstraint(Sketcher.Constraint("DistanceY", 76, 3, -1, 1, 19.954621))
sketch12.addConstraint(Sketcher.Constraint("DistanceX", 77, 3, -1, 1, 19.713962))
sketch12.addConstraint(Sketcher.Constraint("DistanceX", 79, 3, -1, 1, 8.472211))
sketch12.addConstraint(Sketcher.Constraint("DistanceX", 82, 3, -1, 1, 22.476861))
sketch12.addConstraint(Sketcher.Constraint("DistanceX", 83, 3, -1, 1, 18.32219))
sketch12.addConstraint(Sketcher.Constraint("DistanceY", 83, 3, -1, 1, 29.821089))
sketch12.addConstraint(Sketcher.Constraint("DistanceX", 85, 3, -1, 1, 9.51413))
sketch12.addConstraint(Sketcher.Constraint("DistanceY", 1, 3, -1, 1, 41.066265))
sketch12.addConstraint(Sketcher.Constraint("DistanceX", -1, 1, 2, 3, 11.843515))
sketch12.addConstraint(Sketcher.Constraint("DistanceY", 2, 3, -1, 1, 39.774127))
sketch12.addConstraint(Sketcher.Constraint("DistanceX", -1, 1, 3, 3, 17.455165))
sketch12.addConstraint(Sketcher.Constraint("DistanceY", 3, 3, -1, 1, 37.650594))
sketch12.addConstraint(Sketcher.Constraint("DistanceY", 4, 3, -1, 1, 34.740055))
sketch12.addConstraint(Sketcher.Constraint("DistanceY", 6, 3, -1, 1, 26.816493))
sketch12.addConstraint(Sketcher.Constraint("DistanceY", 7, 3, -1, 1, 21.969094))
sketch12.addConstraint(Sketcher.Constraint("DistanceX", -1, 1, 10, 3, 41.182633))
sketch12.addConstraint(Sketcher.Constraint("DistanceY", -1, 1, 11, 3, 0.869507))
sketch12.addConstraint(Sketcher.Constraint("DistanceX", -1, 1, 12, 3, 40.931867))
sketch12.addConstraint(Sketcher.Constraint("DistanceY", -1, 1, 12, 3, 6.843408))
sketch12.addConstraint(Sketcher.Constraint("DistanceY", -1, 1, 13, 3, 12.674262))
sketch12.addConstraint(Sketcher.Constraint("DistanceX", -1, 1, 15, 3, 34.256778))
sketch12.addConstraint(Sketcher.Constraint("DistanceX", -1, 1, 16, 3, 30.520882))
sketch12.addConstraint(Sketcher.Constraint("DistanceY", -1, 1, 16, 3, 28.119846))
sketch12.addConstraint(Sketcher.Constraint("DistanceY", -1, 1, 17, 3, 32.227066))
sketch12.addConstraint(Sketcher.Constraint("DistanceX", -1, 1, 18, 3, 21.226593))
sketch12.addConstraint(Sketcher.Constraint("DistanceY", -1, 1, 18, 3, 35.660647))
sketch12.addConstraint(Sketcher.Constraint("DistanceX", -1, 1, 19, 3, 15.862477))
sketch12.addConstraint(Sketcher.Constraint("DistanceY", -1, 1, 19, 3, 38.348818))
sketch12.addConstraint(Sketcher.Constraint("DistanceY", -1, 1, 20, 3, 40.235387))
sketch12.addConstraint(Sketcher.Constraint("DistanceX", -1, 1, 21, 3, 4.258587))
sketch12.addConstraint(Sketcher.Constraint("DistanceX", 22, 3, -1, 1, 1.738633))
sketch12.addConstraint(Sketcher.Constraint("DistanceY", -1, 1, 22, 3, 41.463564))
sketch12.addConstraint(Sketcher.Constraint("DistanceX", 24, 3, -1, 1, 13.499445))
sketch12.addConstraint(Sketcher.Constraint("DistanceY", -1, 1, 24, 3, 39.243025))
sketch12.addConstraint(Sketcher.Constraint("DistanceY", 26, 3, -1, 1, 34.301267))
sketch12.addConstraint(Sketcher.Constraint("DistanceX", -1, 1, 27, 3, 12.714998))
sketch12.addConstraint(Sketcher.Constraint("DistanceY", 27, 3, -1, 1, 32.608723))
sketch12.addConstraint(Sketcher.Constraint("DistanceX", -1, 1, 28, 3, 17.231743))
sketch12.addConstraint(Sketcher.Constraint("DistanceY", 28, 3, -1, 1, 30.464192))
sketch12.addConstraint(Sketcher.Constraint("DistanceX", -1, 1, 29, 3, 22.181755))
sketch12.addConstraint(Sketcher.Constraint("DistanceY", 29, 3, -1, 1, 27.073414))
sketch12.addConstraint(Sketcher.Constraint("DistanceY", 30, 3, -1, 1, 23.636426))
sketch12.addConstraint(Sketcher.Constraint("DistanceY", 31, 3, -1, 1, 19.717063))
sketch12.addConstraint(Sketcher.Constraint("DistanceX", -1, 1, 33, 3, 33.305195))
sketch12.addConstraint(Sketcher.Constraint("DistanceY", 33, 3, -1, 1, 10.759368))
sketch12.addConstraint(Sketcher.Constraint("DistanceX", -1, 1, 34, 3, 34.498472))
sketch12.addConstraint(Sketcher.Constraint("DistanceY", 34, 3, -1, 1, 5.903846))
sketch12.addConstraint(Sketcher.Constraint("DistanceX", -1, 1, 36, 3, 34.762892))
sketch12.addConstraint(Sketcher.Constraint("DistanceY", -1, 1, 36, 3, 4.067106))
sketch12.addConstraint(Sketcher.Constraint("DistanceX", -1, 1, 37, 3, 33.828638))
sketch12.addConstraint(Sketcher.Constraint("DistanceY", -1, 1, 37, 3, 8.979047))
sketch12.addConstraint(Sketcher.Constraint("DistanceX", -1, 1, 38, 3, 32.204003))
sketch12.addConstraint(Sketcher.Constraint("DistanceY", -1, 1, 38, 3, 13.707743))
sketch12.addConstraint(Sketcher.Constraint("DistanceX", -1, 1, 39, 3, 29.922143))
sketch12.addConstraint(Sketcher.Constraint("DistanceY", -1, 1, 39, 3, 18.156688))
sketch12.addConstraint(Sketcher.Constraint("DistanceX", -1, 1, 40, 3, 27.029628))
sketch12.addConstraint(Sketcher.Constraint("DistanceY", -1, 1, 41, 3, 25.859713))
sketch12.addConstraint(Sketcher.Constraint("DistanceY", -1, 1, 43, 3, 31.888987))
sketch12.addConstraint(Sketcher.Constraint("DistanceY", -1, 1, 45, 3, 34.663106))
sketch12.addConstraint(Sketcher.Constraint("DistanceX", 46, 3, -1, 1, 0.144168))
sketch12.addConstraint(Sketcher.Constraint("DistanceY", -1, 1, 46, 3, 34.999703))
sketch12.addConstraint(Sketcher.Constraint("DistanceX", 47, 3, -1, 1, 5.129883))
sketch12.addConstraint(Sketcher.Constraint("DistanceX", 48, 3, -1, 1, 10.010906))
sketch12.addConstraint(Sketcher.Constraint("DistanceY", -1, 1, 48, 3, 33.537766))
sketch12.addConstraint(Sketcher.Constraint("DistanceX", 49, 3, -1, 1, 19.017203))
sketch12.addConstraint(Sketcher.Constraint("DistanceY", -1, 1, 49, 3, 36.886258))
sketch12.addConstraint(Sketcher.Constraint("DistanceX", 50, 3, -1, 1, 24.137446))
sketch12.addConstraint(Sketcher.Constraint("DistanceX", 51, 3, -1, 1, 28.753147))
sketch12.addConstraint(Sketcher.Constraint("DistanceY", -1, 1, 51, 3, 29.925016))
sketch12.addConstraint(Sketcher.Constraint("DistanceX", 52, 3, -1, 1, 32.767824))
sketch12.addConstraint(Sketcher.Constraint("DistanceX", 53, 3, -1, 1, 36.097558))
sketch12.addConstraint(Sketcher.Constraint("DistanceY", -1, 1, 53, 3, 20.474772))
sketch12.addConstraint(Sketcher.Constraint("DistanceY", -1, 1, 55, 3, 9.321546))
sketch12.addConstraint(Sketcher.Constraint("DistanceX", 56, 3, -1, 1, 41.361085))
sketch12.addConstraint(Sketcher.Constraint("DistanceY", -1, 1, 56, 3, 3.392734))
sketch12.addConstraint(Sketcher.Constraint("DistanceX", 57, 3, -1, 1, 41.418034))
sketch12.addConstraint(Sketcher.Constraint("DistanceY", 57, 3, -1, 1, 2.606995))
sketch12.addConstraint(Sketcher.Constraint("DistanceX", 58, 3, -1, 1, 33.245323))
sketch12.addConstraint(Sketcher.Constraint("DistanceY", 58, 3, -1, 1, 24.839454))
sketch12.addConstraint(Sketcher.Constraint("DistanceX", 59, 3, -1, 1, 40.609227))
sketch12.addConstraint(Sketcher.Constraint("DistanceX", 61, 3, -1, 1, 36.479712))
sketch12.addConstraint(Sketcher.Constraint("DistanceY", 62, 3, -1, 1, 29.373823))
sketch12.addConstraint(Sketcher.Constraint("DistanceY", 63, 3, -1, 1, 33.294195))
sketch12.addConstraint(Sketcher.Constraint("DistanceX", 64, 3, -1, 1, 14.687626))
sketch12.addConstraint(Sketcher.Constraint("DistanceY", -1, 1, 64, 3, 31.769067))
sketch12.addConstraint(Sketcher.Constraint("DistanceX", 66, 3, -1, 1, 23.052497))
sketch12.addConstraint(Sketcher.Constraint("DistanceY", -1, 1, 66, 3, 26.335953))
sketch12.addConstraint(Sketcher.Constraint("DistanceX", 67, 3, -1, 1, 26.569936))
sketch12.addConstraint(Sketcher.Constraint("DistanceY", -1, 1, 67, 3, 22.782416))
sketch12.addConstraint(Sketcher.Constraint("DistanceY", -1, 1, 68, 3, 18.763933))
sketch12.addConstraint(Sketcher.Constraint("DistanceX", 69, 3, -1, 1, 31.917366))
sketch12.addConstraint(Sketcher.Constraint("DistanceY", -1, 1, 69, 3, 14.362512))
sketch12.addConstraint(Sketcher.Constraint("DistanceX", 70, 3, -1, 1, 33.638225))
sketch12.addConstraint(Sketcher.Constraint("DistanceX", 71, 3, -1, 1, 34.795217))
sketch12.addConstraint(Sketcher.Constraint("DistanceY", -1, 1, 71, 3, 3.780588))
sketch12.addConstraint(Sketcher.Constraint("DistanceY", 72, 3, -1, 1, 1.216038))
sketch12.addConstraint(Sketcher.Constraint("DistanceX", 73, 3, -1, 1, 34.448665))
sketch12.addConstraint(Sketcher.Constraint("DistanceY", 73, 3, -1, 1, 6.187847))
sketch12.addConstraint(Sketcher.Constraint("DistanceY", 74, 3, -1, 1, 11.033373))
sketch12.addConstraint(Sketcher.Constraint("DistanceX", 75, 3, -1, 1, 31.304325))
sketch12.addConstraint(Sketcher.Constraint("DistanceY", 77, 3, -1, 1, 36.518622))
sketch12.addConstraint(Sketcher.Constraint("DistanceX", 78, 3, -1, 1, 14.241935))
sketch12.addConstraint(Sketcher.Constraint("DistanceY", 78, 3, -1, 1, 38.979704))
sketch12.addConstraint(Sketcher.Constraint("DistanceY", 79, 3, -1, 1, 40.625997))
sketch12.addConstraint(Sketcher.Constraint("DistanceX", 80, 3, -1, 1, 4.023654))
sketch12.addConstraint(Sketcher.Constraint("DistanceY", 80, 3, -1, 1, 41.304482))
sketch12.addConstraint(Sketcher.Constraint("DistanceX", 81, 3, -1, 1, 25.969847))
sketch12.addConstraint(Sketcher.Constraint("DistanceY", 81, 3, -1, 1, 23.464165))
sketch12.addConstraint(Sketcher.Constraint("DistanceY", 82, 3, -1, 1, 26.828915))
sketch12.addConstraint(Sketcher.Constraint("DistanceX", 84, 3, -1, 1, 14.097292))
sketch12.addConstraint(Sketcher.Constraint("DistanceY", 84, 3, -1, 1, 32.035392))
sketch12.addConstraint(Sketcher.Constraint("DistanceY", 85, 3, -1, 1, 33.682063))
sketch12.addConstraint(Sketcher.Constraint("DistanceX", 86, 3, -1, 1, 4.120127))
sketch12.addConstraint(Sketcher.Constraint("DistanceY", 86, 3, -1, 1, 34.756648))
pocket9 = doc.addObject("PartDesign::Pocket", "Pocket008")
body.addObject(pocket9)
pocket9.Profile = sketch12
pocket9.Length = 10
pocket9.Reversed = True

doc.recompute()
